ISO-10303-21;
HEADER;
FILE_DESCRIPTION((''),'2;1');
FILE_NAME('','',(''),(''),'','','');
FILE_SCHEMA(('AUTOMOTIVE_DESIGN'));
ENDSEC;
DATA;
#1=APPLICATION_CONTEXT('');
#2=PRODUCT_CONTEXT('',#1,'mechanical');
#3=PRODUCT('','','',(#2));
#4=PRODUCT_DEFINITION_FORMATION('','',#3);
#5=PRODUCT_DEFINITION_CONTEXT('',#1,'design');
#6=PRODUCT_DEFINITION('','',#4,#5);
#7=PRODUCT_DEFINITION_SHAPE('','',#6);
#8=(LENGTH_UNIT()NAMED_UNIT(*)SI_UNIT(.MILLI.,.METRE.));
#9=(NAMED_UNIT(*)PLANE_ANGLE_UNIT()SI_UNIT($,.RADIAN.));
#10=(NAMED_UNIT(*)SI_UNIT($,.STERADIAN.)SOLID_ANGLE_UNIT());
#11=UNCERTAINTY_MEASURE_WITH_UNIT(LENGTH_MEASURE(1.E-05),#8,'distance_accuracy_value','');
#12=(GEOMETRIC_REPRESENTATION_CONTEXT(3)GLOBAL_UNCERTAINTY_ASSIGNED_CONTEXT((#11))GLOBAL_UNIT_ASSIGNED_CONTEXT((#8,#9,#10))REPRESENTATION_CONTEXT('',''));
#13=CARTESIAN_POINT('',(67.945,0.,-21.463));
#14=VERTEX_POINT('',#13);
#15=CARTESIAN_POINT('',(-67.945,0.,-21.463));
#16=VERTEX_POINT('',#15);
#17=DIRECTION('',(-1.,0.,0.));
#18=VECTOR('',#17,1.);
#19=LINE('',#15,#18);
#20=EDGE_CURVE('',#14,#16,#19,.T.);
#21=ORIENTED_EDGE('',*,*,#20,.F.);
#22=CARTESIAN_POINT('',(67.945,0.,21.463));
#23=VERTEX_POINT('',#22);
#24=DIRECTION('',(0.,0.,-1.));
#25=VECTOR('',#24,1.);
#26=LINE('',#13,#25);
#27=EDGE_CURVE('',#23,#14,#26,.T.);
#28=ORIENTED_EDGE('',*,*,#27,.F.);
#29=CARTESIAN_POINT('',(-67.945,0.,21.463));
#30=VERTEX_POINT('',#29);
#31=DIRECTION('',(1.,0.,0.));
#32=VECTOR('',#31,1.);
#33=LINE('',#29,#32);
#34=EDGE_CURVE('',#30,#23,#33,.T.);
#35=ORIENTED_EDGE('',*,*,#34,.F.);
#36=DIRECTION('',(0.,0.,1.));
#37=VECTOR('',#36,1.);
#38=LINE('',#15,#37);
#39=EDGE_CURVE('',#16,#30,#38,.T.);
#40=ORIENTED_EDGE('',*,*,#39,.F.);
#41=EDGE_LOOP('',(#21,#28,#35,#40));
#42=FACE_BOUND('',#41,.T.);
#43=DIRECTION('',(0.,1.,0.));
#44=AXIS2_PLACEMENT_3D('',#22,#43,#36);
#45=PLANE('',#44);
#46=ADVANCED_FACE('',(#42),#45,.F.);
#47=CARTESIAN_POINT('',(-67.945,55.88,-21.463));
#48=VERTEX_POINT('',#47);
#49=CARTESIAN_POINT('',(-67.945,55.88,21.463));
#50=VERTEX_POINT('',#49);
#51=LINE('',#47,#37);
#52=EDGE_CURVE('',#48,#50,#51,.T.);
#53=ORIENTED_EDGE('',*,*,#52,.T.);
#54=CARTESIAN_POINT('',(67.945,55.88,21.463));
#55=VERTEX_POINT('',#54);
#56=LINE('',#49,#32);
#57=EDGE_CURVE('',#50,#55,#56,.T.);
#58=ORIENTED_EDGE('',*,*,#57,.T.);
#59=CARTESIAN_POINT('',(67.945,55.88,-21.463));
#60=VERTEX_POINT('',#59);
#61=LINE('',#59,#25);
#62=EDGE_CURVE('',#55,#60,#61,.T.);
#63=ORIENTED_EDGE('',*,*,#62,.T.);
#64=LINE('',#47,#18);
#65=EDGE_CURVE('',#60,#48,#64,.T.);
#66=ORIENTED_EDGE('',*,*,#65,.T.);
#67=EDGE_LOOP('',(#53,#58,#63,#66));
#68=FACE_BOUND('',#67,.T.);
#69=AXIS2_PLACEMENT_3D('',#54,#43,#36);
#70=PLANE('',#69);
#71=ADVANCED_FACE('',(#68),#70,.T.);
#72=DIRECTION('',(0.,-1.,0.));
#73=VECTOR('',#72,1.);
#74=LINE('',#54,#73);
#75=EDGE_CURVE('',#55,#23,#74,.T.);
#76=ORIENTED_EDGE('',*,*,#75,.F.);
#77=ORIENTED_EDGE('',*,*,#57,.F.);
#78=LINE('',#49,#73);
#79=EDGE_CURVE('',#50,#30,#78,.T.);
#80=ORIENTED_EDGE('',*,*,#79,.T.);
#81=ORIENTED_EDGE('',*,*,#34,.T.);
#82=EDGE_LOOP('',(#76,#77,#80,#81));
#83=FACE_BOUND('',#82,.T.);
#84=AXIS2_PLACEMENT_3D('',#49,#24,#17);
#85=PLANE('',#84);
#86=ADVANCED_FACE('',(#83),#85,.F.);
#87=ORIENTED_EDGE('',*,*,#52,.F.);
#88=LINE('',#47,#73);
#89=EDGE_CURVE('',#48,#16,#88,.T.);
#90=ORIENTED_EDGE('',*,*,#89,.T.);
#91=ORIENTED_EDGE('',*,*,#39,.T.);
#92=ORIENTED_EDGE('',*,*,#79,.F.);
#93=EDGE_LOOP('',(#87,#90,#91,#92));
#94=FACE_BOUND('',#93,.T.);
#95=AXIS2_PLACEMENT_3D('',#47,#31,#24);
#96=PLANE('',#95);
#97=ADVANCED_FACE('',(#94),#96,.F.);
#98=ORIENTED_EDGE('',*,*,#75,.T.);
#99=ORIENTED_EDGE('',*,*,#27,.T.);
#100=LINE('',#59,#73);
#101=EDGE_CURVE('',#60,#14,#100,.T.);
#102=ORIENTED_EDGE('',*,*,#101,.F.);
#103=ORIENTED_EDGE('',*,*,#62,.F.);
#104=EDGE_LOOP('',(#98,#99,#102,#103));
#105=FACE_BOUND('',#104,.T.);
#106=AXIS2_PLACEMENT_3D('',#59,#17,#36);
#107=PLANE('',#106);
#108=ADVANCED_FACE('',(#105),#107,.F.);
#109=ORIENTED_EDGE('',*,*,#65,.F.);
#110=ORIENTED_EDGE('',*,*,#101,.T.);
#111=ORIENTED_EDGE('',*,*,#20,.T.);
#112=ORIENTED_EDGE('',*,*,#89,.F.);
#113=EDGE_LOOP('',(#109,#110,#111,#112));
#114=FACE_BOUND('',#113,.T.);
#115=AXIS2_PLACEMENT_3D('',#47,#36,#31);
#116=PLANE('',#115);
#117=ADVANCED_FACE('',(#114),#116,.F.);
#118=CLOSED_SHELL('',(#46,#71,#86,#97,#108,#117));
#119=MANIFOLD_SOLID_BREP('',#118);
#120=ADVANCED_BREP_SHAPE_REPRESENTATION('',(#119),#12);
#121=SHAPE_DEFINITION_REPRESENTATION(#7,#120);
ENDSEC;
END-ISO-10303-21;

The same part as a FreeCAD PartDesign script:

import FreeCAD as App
import Part
import Sketcher
from FreeCAD import Vector
Q = App.Units.Quantity


def add_polygon(sketch, points):
    """Adds a closed chain of lines whose ends are joined by coincident constraints."""
    first, n = sketch.GeometryCount, len(points)
    for a, b in zip(points, points[1:] + points[:1]):
        sketch.addGeometry(Part.LineSegment(App.Vector(*a, 0), App.Vector(*b, 0)), False)
    for i in range(n):
        sketch.addConstraint(Sketcher.Constraint("Coincident", first + i, 2, first + (i + 1) % n, 1))

doc = App.newDocument("Part")
body = doc.addObject("PartDesign::Body", "Body")

# Sketch on XZ plane
sketch1 = body.newObject("Sketcher::SketchObject", "Sketch")
sketch1.AttachmentSupport = (doc.getObject("XZ_Plane"), [""])
sketch1.MapMode = "FlatFace"
add_polygon(sketch1, [(-68, -21), (-68, 21), (68, 21), (68, -21)])  # lines 0-3
sketch1.addConstraint(Sketcher.Constraint("Vertical", 0))
sketch1.addConstraint(Sketcher.Constraint("Horizontal", 1))
sketch1.addConstraint(Sketcher.Constraint("Vertical", 2))
sketch1.addConstraint(Sketcher.Constraint("Horizontal", 3))
sketch1.addConstraint(Sketcher.Constraint("Symmetric", 0, 2, 2, 2, -1, 1))
sketch1.addConstraint(Sketcher.Constraint("DistanceX", 1, 1, 1, 2, Q("5.35 in")))
sketch1.addConstraint(Sketcher.Constraint("DistanceY", 0, 1, 0, 2, Q("1.69 in")))
pad1 = body.newObject("PartDesign::Pad", "Pad")
pad1.Profile = sketch1
pad1.Length = Q("2.2 in")
pad1.Reversed = True

doc.recompute()
